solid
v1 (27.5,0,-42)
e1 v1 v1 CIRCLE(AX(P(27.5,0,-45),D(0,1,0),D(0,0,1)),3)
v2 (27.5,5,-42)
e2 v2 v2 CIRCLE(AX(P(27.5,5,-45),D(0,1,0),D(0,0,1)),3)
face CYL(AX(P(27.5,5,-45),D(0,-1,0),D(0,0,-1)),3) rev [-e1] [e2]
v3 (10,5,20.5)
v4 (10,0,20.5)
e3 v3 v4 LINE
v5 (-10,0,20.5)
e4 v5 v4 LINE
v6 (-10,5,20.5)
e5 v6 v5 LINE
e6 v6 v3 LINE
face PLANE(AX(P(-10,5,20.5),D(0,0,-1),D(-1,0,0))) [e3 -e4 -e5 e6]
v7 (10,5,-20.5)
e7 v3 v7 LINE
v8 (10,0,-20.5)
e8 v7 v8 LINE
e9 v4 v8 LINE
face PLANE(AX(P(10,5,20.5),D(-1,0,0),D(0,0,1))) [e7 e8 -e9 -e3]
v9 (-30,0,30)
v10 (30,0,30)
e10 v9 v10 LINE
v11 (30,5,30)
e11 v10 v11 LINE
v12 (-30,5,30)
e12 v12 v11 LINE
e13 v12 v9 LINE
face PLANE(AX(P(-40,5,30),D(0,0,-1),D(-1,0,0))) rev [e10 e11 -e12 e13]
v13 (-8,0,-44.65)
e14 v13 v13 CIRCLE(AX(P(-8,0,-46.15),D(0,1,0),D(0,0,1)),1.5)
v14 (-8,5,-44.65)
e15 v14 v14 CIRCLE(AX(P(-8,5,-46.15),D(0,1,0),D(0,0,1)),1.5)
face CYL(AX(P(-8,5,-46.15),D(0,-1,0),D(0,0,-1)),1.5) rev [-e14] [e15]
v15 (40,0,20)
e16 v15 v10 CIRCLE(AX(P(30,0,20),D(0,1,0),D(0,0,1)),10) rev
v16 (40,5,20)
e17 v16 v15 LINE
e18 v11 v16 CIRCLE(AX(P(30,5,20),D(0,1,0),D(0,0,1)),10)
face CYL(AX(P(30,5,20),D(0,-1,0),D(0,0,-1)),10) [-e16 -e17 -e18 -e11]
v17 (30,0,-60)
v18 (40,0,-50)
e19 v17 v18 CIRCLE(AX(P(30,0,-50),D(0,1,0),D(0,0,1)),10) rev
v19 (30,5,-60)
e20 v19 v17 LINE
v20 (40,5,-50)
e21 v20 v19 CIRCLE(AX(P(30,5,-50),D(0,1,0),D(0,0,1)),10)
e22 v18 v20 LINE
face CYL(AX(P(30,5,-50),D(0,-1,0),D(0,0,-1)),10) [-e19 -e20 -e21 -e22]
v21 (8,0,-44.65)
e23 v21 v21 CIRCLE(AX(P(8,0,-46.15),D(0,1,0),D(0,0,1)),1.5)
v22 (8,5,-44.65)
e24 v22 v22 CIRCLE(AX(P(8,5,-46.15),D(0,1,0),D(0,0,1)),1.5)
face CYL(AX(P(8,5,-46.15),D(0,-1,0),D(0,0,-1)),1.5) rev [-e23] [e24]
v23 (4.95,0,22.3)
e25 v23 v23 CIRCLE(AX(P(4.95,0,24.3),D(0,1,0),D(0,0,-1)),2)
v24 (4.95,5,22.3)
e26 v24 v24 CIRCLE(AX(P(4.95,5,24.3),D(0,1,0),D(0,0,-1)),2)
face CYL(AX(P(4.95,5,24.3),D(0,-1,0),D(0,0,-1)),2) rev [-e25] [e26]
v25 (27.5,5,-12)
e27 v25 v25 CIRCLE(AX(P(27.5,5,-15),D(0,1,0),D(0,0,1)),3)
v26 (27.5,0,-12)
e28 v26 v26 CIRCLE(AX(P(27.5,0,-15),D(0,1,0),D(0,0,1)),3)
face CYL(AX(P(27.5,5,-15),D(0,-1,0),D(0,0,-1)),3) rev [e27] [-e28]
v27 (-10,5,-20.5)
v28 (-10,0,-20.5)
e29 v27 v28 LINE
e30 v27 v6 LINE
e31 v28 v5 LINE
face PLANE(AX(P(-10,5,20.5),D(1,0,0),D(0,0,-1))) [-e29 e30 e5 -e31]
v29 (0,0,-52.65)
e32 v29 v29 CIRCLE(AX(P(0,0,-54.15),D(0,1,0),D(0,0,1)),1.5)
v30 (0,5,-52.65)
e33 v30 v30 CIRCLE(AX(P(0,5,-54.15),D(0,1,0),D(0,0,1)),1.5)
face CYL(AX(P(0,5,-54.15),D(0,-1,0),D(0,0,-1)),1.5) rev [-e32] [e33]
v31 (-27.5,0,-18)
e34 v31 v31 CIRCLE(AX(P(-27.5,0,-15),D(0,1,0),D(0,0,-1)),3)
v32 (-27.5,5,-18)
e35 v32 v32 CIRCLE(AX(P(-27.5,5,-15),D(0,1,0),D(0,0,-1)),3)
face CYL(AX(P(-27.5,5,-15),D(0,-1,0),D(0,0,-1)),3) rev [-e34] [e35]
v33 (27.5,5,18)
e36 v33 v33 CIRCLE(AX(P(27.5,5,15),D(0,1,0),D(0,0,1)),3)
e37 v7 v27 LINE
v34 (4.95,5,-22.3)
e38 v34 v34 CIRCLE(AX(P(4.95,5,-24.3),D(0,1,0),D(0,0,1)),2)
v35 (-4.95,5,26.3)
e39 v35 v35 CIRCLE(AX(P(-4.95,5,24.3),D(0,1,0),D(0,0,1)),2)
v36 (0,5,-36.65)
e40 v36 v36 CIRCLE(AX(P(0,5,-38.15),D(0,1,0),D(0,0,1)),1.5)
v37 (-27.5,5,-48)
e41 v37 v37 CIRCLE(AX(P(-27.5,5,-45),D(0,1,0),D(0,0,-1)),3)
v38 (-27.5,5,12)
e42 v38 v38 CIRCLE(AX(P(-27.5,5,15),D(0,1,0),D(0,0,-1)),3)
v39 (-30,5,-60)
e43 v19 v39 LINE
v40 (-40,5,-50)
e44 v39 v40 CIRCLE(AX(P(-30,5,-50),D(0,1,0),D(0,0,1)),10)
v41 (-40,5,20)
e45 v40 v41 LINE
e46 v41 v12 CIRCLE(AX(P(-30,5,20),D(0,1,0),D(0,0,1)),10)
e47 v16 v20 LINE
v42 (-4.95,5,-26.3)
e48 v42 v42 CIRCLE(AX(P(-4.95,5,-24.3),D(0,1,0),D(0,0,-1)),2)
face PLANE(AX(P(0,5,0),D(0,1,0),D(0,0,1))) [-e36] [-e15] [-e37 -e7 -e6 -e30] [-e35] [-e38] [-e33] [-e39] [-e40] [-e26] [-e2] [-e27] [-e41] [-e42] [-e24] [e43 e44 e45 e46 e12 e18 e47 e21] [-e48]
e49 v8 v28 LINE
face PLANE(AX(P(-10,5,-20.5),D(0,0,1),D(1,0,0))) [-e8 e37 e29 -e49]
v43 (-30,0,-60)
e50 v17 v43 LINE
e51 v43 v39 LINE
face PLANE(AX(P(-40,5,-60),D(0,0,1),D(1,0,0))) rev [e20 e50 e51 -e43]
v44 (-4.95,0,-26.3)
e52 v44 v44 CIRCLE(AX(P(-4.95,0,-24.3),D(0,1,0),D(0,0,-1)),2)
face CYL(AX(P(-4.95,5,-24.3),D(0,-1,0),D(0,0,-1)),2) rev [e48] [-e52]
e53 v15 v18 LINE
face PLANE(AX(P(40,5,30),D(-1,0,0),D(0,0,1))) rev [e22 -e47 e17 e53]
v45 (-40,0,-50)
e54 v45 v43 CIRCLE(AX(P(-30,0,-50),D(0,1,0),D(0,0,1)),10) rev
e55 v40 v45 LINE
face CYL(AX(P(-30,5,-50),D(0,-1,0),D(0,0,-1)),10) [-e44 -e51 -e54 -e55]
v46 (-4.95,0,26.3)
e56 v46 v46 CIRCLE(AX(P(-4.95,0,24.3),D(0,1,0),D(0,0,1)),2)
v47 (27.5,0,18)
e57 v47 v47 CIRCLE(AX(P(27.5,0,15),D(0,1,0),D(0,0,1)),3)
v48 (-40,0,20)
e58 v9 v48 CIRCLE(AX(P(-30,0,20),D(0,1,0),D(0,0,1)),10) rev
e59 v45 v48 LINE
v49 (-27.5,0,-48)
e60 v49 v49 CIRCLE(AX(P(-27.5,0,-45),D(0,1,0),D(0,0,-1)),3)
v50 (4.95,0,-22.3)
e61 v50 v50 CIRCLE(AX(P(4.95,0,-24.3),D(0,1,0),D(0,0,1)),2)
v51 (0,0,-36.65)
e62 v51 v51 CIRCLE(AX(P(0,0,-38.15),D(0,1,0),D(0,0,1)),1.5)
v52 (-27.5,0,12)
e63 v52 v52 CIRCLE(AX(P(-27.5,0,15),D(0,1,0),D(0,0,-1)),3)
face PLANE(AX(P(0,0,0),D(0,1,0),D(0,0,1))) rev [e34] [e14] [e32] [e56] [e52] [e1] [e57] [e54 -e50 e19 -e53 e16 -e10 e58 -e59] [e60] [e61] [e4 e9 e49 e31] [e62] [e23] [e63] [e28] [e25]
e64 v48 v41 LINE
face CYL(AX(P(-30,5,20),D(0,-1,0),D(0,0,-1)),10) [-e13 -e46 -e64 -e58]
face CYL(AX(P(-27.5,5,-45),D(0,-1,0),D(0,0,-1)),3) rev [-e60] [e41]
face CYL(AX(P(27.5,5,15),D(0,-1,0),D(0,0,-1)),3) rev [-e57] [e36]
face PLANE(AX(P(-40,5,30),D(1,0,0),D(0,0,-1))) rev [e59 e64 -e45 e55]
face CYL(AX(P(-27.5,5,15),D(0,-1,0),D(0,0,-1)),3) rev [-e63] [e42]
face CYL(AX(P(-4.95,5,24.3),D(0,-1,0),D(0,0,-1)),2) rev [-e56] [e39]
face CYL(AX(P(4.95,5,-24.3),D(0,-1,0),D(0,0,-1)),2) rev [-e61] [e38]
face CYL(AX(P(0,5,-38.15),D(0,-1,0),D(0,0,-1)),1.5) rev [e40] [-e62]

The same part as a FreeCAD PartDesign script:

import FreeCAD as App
import Part
import Sketcher
from FreeCAD import Vector
Q = App.Units.Quantity


def edges_at(feature, points):
    """Names of the edges that pass closest to the given points."""
    edges = feature.Shape.Edges
    near = lambda p: min(range(len(edges)), key=lambda i: edges[i].distToShape(Part.Vertex(*p))[0])
    return sorted({f"Edge{near(p) + 1}" for p in points})

doc = App.newDocument("Part")
params = doc.addObject("Spreadsheet::Sheet", "Params")
for row, (alias, value) in enumerate([
    ("sketch1_diameter", "6 mm"),
    ("sketch1_diameter2", "4 mm"),
    ("sketch1_width", "80 mm"),
    ("sketch1_width2", "20 mm"),
    ("sketch1_height", "90 mm"),
    ("pad1_length", "5 mm"),
    ("fillet_radius", "10 mm"),
    ("sketch2_diameter", "3 mm"),
], start=1):
    params.set(f"A{row}", alias)
    params.set(f"B{row}", "=" + value)
    params.setAlias(f"B{row}", alias)

body = doc.addObject("PartDesign::Body", "Body")

# Sketch on XZ plane
sketch1 = doc.addObject("Sketcher::SketchObject", "Sketch")
body.addObject(sketch1)
sketch1.AttachmentSupport = (doc.XZ_Plane, [""])
sketch1.MapMode = "FlatFace"
sketch1.addGeometry([
    Part.LineSegment(Vector(-40, -60, 0), Vector(-40, 30, 0)),  # 0
    Part.LineSegment(Vector(-40, 30, 0), Vector(40, 30, 0)),  # 1
    Part.LineSegment(Vector(40, 30, 0), Vector(40, -60, 0)),  # 2
    Part.LineSegment(Vector(40, -60, 0), Vector(-40, -60, 0)),  # 3
    Part.Circle(Vector(-27.5, 15, 0), Vector(0, 0, 1), 3),  # 4
    Part.Circle(Vector(-5, 24.3, 0), Vector(0, 0, 1), 2),  # 5
    Part.Circle(Vector(5, 24.3, 0), Vector(0, 0, 1), 2),  # 6
    Part.Circle(Vector(27.5, 15, 0), Vector(0, 0, 1), 3),  # 7
    Part.LineSegment(Vector(10, 20.5, 0), Vector(-10, 20.5, 0)),  # 8
    Part.LineSegment(Vector(-10, 20.5, 0), Vector(-10, -20.5, 0)),  # 9
    Part.LineSegment(Vector(-10, -20.5, 0), Vector(10, -20.5, 0)),  # 10
    Part.LineSegment(Vector(10, -20.5, 0), Vector(10, 20.5, 0)),  # 11
    Part.Circle(Vector(-27.5, -15, 0), Vector(0, 0, 1), 3),  # 12
    Part.Circle(Vector(-5, -24.3, 0), Vector(0, 0, 1), 2),  # 13
    Part.Circle(Vector(-27.5, -45, 0), Vector(0, 0, 1), 3),  # 14
    Part.Circle(Vector(5, -24.3, 0), Vector(0, 0, 1), 2),  # 15
    Part.Circle(Vector(27.5, -15, 0), Vector(0, 0, 1), 3),  # 16
    Part.Circle(Vector(27.5, -45, 0), Vector(0, 0, 1), 3),  # 17
], False)
sketch1.addConstraint([
    Sketcher.Constraint("Coincident", 0, 2, 1, 1),
    Sketcher.Constraint("Coincident", 1, 2, 2, 1),
    Sketcher.Constraint("Coincident", 2, 2, 3, 1),
    Sketcher.Constraint("Coincident", 3, 2, 0, 1),
    Sketcher.Constraint("Coincident", 8, 2, 9, 1),
    Sketcher.Constraint("Coincident", 9, 2, 10, 1),
    Sketcher.Constraint("Coincident", 10, 2, 11, 1),
    Sketcher.Constraint("Coincident", 11, 2, 8, 1),
    Sketcher.Constraint("Vertical", 0),
    Sketcher.Constraint("Horizontal", 1),
    Sketcher.Constraint("Vertical", 2),
    Sketcher.Constraint("Horizontal", 3),
    Sketcher.Constraint("Horizontal", 8),
    Sketcher.Constraint("Vertical", 9),
    Sketcher.Constraint("Horizontal", 10),
    Sketcher.Constraint("Vertical", 11),
    Sketcher.Constraint("Equal", 5, 6),
    Sketcher.Constraint("Equal", 4, 7),
    Sketcher.Constraint("Equal", 7, 12),
    Sketcher.Constraint("Equal", 6, 13),
    Sketcher.Constraint("Equal", 12, 14),
    Sketcher.Constraint("Equal", 13, 15),
    Sketcher.Constraint("Equal", 14, 16),
    Sketcher.Constraint("Equal", 16, 17),
    Sketcher.Constraint("Symmetric", 7, 3, 12, 3, -1, 1),
    Sketcher.Constraint("Symmetric", 6, 3, 13, 3, -1, 1),
    Sketcher.Constraint("Symmetric", 5, 3, 15, 3, -1, 1),
    Sketcher.Constraint("Symmetric", 4, 3, 16, 3, -1, 1),
    Sketcher.Constraint("Symmetric", 8, 2, 10, 2, -1, 1),
    Sketcher.Constraint("Symmetric", 5, 3, 6, 3, -2),
    Sketcher.Constraint("Symmetric", 4, 3, 7, 3, -2),
    Sketcher.Constraint("Symmetric", 14, 3, 17, 3, -2),
    Sketcher.Constraint("Vertical", 12, 3, 14, 3),
    Sketcher.Constraint("Diameter", 4, Q("6 mm")),
    Sketcher.Constraint("Diameter", 5, Q("4 mm")),
    Sketcher.Constraint("DistanceX", 1, 1, 1, 2, Q("80 mm")),
    Sketcher.Constraint("DistanceX", 8, 2, 8, 1, Q("20 mm")),
    Sketcher.Constraint("DistanceY", 0, 1, 0, 2, Q("90 mm")),
    Sketcher.Constraint("DistanceY", 9, 2, 9, 1, Q("41 mm")),
    Sketcher.Constraint("DistanceY", -1, 1, 4, 3, Q("15 mm")),
    Sketcher.Constraint("DistanceY", 14, 3, -1, 1, Q("45 mm")),
    Sketcher.Constraint("DistanceX", 0, 2, -1, 1, Q("40 mm")),
    Sketcher.Constraint("DistanceY", -1, 1, 0, 2, Q("30 mm")),
    Sketcher.Constraint("DistanceX", 4, 3, 7, 3, Q("55 mm")),
    Sketcher.Constraint("DistanceY", -1, 1, 5, 3, Q("24.3 mm")),
    Sketcher.Constraint("DistanceX", 5, 3, 6, 3, Q("9.9 mm")),
])
sketch1.setExpression("Constraints[33]", "Params.sketch1_diameter")
sketch1.setExpression("Constraints[34]", "Params.sketch1_diameter2")
sketch1.setExpression("Constraints[35]", "Params.sketch1_width")
sketch1.setExpression("Constraints[36]", "Params.sketch1_width2")
sketch1.setExpression("Constraints[37]", "Params.sketch1_height")
pad1 = doc.addObject("PartDesign::Pad", "Pad")
body.addObject(pad1)
pad1.Profile = sketch1
pad1.setExpression("Length", "Params.pad1_length")
pad1.Reversed = True
doc.recompute()

fillet = doc.addObject("PartDesign::Fillet", "Fillet")
body.addObject(fillet)
fillet.Base = (pad1, edges_at(pad1, [
    (40, 2.5, -60),
    (40, 2.5, 30),
    (-40, 2.5, 30),
    (-40, 2.5, -60),
]))
fillet.setExpression("Radius", "Params.fillet_radius")

# Sketch on XZ plane
sketch2 = doc.addObject("Sketcher::SketchObject", "Sketch001")
body.addObject(sketch2)
sketch2.AttachmentSupport = (doc.XZ_Plane, [""])
sketch2.MapMode = "FlatFace"
sketch2.addGeometry([
    Part.Circle(Vector(0, -54.1, 0), Vector(0, 0, 1), 1.5),
    Part.Circle(Vector(8, -46.1, 0), Vector(0, 0, 1), 1.5),
    Part.Circle(Vector(0, -38.1, 0), Vector(0, 0, 1), 1.5),
    Part.Circle(Vector(-8, -46.1, 0), Vector(0, 0, 1), 1.5),
], False)
sketch2.addConstraint([
    Sketcher.Constraint("Equal", 0, 1),
    Sketcher.Constraint("Equal", 1, 2),
    Sketcher.Constraint("Equal", 2, 3),
    Sketcher.Constraint("Symmetric", 1, 3, 3, 3, -2),
    Sketcher.Constraint("PointOnObject", 0, 3, -2),
    Sketcher.Constraint("PointOnObject", 2, 3, -2),
    Sketcher.Constraint("Diameter", 0, Q("3 mm")),
    Sketcher.Constraint("DistanceX", -1, 1, 1, 3, Q("8 mm")),
    Sketcher.Constraint("DistanceY", 0, 3, 1, 3, Q("8 mm")),
    Sketcher.Constraint("DistanceY", 1, 3, 2, 3, Q("8 mm")),
    Sketcher.Constraint("DistanceY", 0, 3, -1, 1, Q("54.15 mm")),
])
sketch2.setExpression("Constraints[6]", "Params.sketch2_diameter")
pocket1 = doc.addObject("PartDesign::Pocket", "Pocket")
body.addObject(pocket1)
pocket1.Profile = sketch2
pocket1.Type = "ThroughAll"

doc.recompute()
